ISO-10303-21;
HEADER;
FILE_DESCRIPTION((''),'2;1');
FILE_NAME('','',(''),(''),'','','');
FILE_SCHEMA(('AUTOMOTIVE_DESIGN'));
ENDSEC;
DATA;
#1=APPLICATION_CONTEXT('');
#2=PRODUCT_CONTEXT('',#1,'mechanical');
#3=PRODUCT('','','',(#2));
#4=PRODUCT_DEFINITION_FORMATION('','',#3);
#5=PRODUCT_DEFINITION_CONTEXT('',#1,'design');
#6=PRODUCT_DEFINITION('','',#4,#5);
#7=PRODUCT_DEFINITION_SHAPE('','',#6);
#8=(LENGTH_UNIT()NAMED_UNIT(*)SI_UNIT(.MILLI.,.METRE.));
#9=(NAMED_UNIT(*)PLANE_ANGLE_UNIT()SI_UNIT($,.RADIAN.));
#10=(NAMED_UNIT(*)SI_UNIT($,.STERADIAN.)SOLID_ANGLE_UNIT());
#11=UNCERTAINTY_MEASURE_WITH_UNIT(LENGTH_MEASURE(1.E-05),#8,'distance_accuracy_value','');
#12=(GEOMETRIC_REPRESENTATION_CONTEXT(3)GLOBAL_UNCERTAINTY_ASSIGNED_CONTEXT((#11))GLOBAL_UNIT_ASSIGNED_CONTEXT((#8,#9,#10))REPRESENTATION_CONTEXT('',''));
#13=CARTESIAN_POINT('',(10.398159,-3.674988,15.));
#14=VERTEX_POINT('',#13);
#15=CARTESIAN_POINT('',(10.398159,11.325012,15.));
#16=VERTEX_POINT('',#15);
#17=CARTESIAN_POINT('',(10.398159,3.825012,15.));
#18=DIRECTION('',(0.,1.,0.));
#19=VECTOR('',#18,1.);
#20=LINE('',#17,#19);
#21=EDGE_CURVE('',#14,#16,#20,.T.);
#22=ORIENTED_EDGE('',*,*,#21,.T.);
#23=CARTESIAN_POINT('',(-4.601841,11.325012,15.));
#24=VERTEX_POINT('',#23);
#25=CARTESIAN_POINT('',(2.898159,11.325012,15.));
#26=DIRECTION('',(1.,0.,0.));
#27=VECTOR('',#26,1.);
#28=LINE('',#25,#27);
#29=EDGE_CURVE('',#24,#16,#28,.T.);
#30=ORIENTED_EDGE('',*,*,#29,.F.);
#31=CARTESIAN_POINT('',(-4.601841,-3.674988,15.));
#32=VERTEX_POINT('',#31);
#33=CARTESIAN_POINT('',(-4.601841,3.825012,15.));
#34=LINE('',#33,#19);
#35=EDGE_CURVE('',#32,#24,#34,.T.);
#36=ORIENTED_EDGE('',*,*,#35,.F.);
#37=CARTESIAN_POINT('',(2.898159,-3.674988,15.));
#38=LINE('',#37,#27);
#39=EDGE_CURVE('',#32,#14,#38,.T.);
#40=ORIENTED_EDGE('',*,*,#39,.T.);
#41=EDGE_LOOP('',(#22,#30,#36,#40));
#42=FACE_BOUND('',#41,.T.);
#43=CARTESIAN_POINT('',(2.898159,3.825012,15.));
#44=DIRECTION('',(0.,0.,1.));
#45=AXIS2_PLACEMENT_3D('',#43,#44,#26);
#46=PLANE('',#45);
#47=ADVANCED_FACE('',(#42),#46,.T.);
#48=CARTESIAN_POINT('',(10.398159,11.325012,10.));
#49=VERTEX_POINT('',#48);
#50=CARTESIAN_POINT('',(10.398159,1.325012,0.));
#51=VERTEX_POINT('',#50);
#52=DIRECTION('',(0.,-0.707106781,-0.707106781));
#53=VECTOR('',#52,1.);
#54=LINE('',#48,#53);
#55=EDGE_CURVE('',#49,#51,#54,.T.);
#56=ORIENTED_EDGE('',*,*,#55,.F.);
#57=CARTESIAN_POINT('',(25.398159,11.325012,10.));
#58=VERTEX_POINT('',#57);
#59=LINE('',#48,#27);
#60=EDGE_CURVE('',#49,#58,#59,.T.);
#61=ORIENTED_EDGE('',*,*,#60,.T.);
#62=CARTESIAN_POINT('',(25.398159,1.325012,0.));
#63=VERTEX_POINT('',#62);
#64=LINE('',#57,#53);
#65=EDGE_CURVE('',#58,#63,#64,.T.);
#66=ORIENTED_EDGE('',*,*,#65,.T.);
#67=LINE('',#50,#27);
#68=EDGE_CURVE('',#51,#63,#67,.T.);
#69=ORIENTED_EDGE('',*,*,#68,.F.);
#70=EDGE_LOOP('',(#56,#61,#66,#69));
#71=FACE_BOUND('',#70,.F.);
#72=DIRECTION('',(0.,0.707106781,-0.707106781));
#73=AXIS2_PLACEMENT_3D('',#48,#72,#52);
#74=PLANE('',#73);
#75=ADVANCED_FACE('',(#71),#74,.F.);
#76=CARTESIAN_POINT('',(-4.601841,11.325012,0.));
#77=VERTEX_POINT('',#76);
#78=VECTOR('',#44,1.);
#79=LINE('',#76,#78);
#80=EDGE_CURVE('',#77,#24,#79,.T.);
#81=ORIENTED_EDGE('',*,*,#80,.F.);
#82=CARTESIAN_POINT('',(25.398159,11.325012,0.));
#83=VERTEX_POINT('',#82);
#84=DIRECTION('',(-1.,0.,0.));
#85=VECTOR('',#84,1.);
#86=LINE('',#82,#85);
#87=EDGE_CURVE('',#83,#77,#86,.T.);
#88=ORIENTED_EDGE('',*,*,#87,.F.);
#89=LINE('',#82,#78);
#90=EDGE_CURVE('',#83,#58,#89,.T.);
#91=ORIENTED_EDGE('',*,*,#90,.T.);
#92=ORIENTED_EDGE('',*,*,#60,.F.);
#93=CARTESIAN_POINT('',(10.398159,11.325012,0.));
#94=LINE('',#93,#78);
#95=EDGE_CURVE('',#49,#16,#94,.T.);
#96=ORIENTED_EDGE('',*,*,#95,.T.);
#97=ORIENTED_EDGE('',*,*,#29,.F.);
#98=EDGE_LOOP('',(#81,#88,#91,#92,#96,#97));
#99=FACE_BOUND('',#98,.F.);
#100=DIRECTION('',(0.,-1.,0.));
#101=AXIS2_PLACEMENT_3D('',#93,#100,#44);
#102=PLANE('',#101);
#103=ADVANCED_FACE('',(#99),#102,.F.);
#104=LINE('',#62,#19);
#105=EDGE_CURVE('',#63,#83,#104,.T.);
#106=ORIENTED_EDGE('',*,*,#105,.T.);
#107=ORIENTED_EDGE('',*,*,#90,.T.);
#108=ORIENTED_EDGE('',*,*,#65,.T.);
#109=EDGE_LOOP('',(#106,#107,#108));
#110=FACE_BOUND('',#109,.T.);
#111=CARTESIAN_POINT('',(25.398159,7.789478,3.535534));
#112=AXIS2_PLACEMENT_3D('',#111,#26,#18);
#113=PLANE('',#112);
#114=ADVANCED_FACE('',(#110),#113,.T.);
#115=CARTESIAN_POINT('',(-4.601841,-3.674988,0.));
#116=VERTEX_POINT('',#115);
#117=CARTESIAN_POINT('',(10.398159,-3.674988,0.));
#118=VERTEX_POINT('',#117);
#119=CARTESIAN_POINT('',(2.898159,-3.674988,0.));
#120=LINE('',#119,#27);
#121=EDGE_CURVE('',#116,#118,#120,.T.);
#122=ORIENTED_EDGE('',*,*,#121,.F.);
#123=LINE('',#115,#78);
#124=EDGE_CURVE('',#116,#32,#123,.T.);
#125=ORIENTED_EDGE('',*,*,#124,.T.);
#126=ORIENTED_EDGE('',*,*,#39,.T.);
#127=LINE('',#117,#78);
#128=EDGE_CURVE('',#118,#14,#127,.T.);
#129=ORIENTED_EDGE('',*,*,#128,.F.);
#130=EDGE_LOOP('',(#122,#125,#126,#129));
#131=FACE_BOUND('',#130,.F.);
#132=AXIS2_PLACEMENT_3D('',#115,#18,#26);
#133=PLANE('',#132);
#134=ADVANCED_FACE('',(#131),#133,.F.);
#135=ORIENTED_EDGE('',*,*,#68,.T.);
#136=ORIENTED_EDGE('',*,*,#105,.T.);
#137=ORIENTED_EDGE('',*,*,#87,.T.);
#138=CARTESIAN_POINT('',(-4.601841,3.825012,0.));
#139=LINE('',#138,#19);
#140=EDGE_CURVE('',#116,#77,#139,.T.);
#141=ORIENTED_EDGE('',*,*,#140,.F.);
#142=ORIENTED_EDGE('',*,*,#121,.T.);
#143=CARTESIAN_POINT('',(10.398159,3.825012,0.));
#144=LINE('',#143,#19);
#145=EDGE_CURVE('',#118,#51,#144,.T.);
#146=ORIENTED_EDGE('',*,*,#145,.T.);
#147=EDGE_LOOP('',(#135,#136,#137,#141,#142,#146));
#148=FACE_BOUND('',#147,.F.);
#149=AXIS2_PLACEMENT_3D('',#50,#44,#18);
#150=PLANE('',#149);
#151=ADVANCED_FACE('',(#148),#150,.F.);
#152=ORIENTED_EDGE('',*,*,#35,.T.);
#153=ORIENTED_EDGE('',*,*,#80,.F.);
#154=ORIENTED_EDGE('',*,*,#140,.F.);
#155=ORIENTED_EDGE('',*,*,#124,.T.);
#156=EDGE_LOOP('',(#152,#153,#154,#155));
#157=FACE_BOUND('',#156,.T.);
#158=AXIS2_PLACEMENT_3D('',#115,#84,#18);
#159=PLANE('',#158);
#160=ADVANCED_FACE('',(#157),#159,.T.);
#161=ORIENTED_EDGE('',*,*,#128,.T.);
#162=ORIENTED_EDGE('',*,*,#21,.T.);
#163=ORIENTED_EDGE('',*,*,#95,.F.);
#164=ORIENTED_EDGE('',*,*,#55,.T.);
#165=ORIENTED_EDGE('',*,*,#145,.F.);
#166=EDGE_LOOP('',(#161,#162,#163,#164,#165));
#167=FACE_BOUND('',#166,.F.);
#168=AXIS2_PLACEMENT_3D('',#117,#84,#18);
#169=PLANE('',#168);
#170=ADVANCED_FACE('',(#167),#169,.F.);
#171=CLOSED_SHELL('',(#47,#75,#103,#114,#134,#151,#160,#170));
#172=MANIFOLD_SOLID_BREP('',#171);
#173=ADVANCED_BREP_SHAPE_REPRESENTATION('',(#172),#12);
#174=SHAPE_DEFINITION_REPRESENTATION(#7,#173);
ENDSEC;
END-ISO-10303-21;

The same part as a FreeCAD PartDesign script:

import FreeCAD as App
import Part
import Sketcher

V = App.Vector

doc = App.newDocument("Part")
body = doc.addObject("PartDesign::Body", "Body")

# Sketch on XY plane
sketch1 = doc.addObject("Sketcher::SketchObject", "Sketch")
body.addObject(sketch1)
sketch1.AttachmentSupport = (doc.XY_Plane, [""])
sketch1.MapMode = "FlatFace"
sketch1.addGeometry(Part.LineSegment(V(-5, 11, 0), V(-5, -4, 0)), False)
sketch1.addGeometry(Part.LineSegment(V(-5, -4, 0), V(10, -4, 0)), False)
sketch1.addGeometry(Part.LineSegment(V(10, -4, 0), V(10, 11, 0)), False)
sketch1.addGeometry(Part.LineSegment(V(10, 11, 0), V(-5, 11, 0)), False)
sketch1.addConstraint(Sketcher.Constraint("Coincident", 0, 2, 1, 1))
sketch1.addConstraint(Sketcher.Constraint("Coincident", 1, 2, 2, 1))
sketch1.addConstraint(Sketcher.Constraint("Coincident", 2, 2, 3, 1))
sketch1.addConstraint(Sketcher.Constraint("Coincident", 3, 2, 0, 1))
sketch1.addConstraint(Sketcher.Constraint("Vertical", 0))
sketch1.addConstraint(Sketcher.Constraint("Horizontal", 1))
sketch1.addConstraint(Sketcher.Constraint("Vertical", 2))
sketch1.addConstraint(Sketcher.Constraint("Horizontal", 3))
sketch1.addConstraint(Sketcher.Constraint("Equal", 3, 0))
sketch1.addConstraint(Sketcher.Constraint("DistanceX", 1, 1, 1, 2, 15.0))
sketch1.addConstraint(Sketcher.Constraint("DistanceX", 0, 2, -1, 1, 4.601841))
sketch1.addConstraint(Sketcher.Constraint("DistanceY", -1, 1, 2, 2, 11.325012))
pad1 = doc.addObject("PartDesign::Pad", "Pad")
body.addObject(pad1)
pad1.Profile = sketch1
pad1.Length = 15

# Sketch on YZ plane
sketch2 = doc.addObject("Sketcher::SketchObject", "Sketch001")
body.addObject(sketch2)
sketch2.AttachmentSupport = (doc.YZ_Plane, [""])
sketch2.MapMode = "FlatFace"
sketch2.AttachmentOffset = App.Placement(V(0, 0, 10.398159), App.Rotation())
sketch2.addGeometry(Part.LineSegment(V(11, 10, 0), V(1, 0, 0)), False)
sketch2.addGeometry(Part.LineSegment(V(1, 0, 0), V(11, 0, 0)), False)
sketch2.addGeometry(Part.LineSegment(V(11, 0, 0), V(11, 10, 0)), False)
sketch2.addConstraint(Sketcher.Constraint("Coincident", 0, 2, 1, 1))
sketch2.addConstraint(Sketcher.Constraint("Coincident", 1, 2, 2, 1))
sketch2.addConstraint(Sketcher.Constraint("Coincident", 2, 2, 0, 1))
sketch2.addConstraint(Sketcher.Constraint("Horizontal", 1))
sketch2.addConstraint(Sketcher.Constraint("Vertical", 2))
sketch2.addConstraint(Sketcher.Constraint("PointOnObject", 0, 2, -1))
sketch2.addConstraint(Sketcher.Constraint("Equal", 1, 2))
sketch2.addConstraint(Sketcher.Constraint("DistanceX", 1, 1, 1, 2, 10.0))
sketch2.addConstraint(Sketcher.Constraint("DistanceX", -1, 1, 1, 2, 11.325012))
pad2 = doc.addObject("PartDesign::Pad", "Pad001")
body.addObject(pad2)
pad2.Profile = sketch2
pad2.Length = 15

doc.recompute()
